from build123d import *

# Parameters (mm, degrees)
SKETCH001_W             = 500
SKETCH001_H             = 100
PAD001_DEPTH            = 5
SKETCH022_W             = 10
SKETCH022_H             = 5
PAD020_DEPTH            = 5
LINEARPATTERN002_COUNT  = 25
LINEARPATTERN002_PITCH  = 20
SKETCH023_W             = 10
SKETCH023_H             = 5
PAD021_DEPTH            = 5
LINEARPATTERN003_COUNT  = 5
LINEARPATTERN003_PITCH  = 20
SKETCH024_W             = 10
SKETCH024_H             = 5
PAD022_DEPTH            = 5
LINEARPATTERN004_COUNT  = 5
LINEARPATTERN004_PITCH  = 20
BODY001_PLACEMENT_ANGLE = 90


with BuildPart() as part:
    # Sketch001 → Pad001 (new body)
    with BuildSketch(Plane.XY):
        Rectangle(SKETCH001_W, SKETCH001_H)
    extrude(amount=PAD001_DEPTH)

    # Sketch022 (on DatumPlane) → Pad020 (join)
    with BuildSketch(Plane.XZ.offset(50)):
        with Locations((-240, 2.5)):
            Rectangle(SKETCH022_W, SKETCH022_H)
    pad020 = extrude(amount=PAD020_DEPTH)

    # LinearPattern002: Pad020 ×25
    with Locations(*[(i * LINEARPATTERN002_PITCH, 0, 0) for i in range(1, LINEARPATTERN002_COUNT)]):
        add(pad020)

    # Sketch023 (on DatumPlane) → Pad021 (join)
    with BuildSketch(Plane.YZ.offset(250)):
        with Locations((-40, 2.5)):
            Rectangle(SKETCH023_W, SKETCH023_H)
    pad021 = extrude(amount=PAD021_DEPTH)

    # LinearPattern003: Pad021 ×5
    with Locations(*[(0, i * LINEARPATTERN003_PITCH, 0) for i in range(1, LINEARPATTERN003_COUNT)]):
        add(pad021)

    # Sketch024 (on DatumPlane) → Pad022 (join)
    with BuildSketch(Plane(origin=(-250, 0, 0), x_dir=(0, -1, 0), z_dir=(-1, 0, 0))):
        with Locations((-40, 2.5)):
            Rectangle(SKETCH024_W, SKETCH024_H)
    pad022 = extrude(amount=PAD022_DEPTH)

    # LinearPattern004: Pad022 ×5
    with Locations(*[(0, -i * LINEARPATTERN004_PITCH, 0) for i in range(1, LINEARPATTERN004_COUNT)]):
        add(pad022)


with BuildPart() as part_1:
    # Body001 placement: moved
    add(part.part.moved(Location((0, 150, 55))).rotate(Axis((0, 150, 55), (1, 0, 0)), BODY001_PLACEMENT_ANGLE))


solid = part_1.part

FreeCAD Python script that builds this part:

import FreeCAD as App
import Part
import Sketcher
from FreeCAD import Vector
Q = App.Units.Quantity


def add_polygon(sketch, points):
    """Adds a closed chain of lines whose ends are joined by coincident constraints."""
    first, n = sketch.GeometryCount, len(points)
    for a, b in zip(points, points[1:] + points[:1]):
        sketch.addGeometry(Part.LineSegment(App.Vector(*a, 0), App.Vector(*b, 0)), False)
    for i in range(n):
        sketch.addConstraint(Sketcher.Constraint("Coincident", first + i, 2, first + (i + 1) % n, 1))

doc = App.newDocument("Part")
body = doc.addObject("PartDesign::Body", "Body")

# Sketch on XY plane
sketch1 = body.newObject("Sketcher::SketchObject", "Sketch")
sketch1.AttachmentSupport = (doc.getObject("XY_Plane"), [""])
sketch1.MapMode = "FlatFace"
add_polygon(sketch1, [(-250, 50), (-250, -50), (250, -50), (250, 50)])  # lines 0-3
sketch1.addConstraint([
    Sketcher.Constraint("Vertical", 0),
    Sketcher.Constraint("Horizontal", 1),
    Sketcher.Constraint("Vertical", 2),
    Sketcher.Constraint("Horizontal", 3),
    Sketcher.Constraint("Symmetric", 0, 2, 2, 2, -1, 1),
    Sketcher.Constraint("DistanceX", 1, 1, 1, 2, Q("500 mm")),
    Sketcher.Constraint("DistanceY", 0, 2, 0, 1, Q("100 mm")),
])
pad1 = body.newObject("PartDesign::Pad", "Pad")
pad1.Profile = sketch1
pad1.Length = 5

# Sketch on XZ plane
sketch2 = body.newObject("Sketcher::SketchObject", "Sketch001")
sketch2.AttachmentSupport = (doc.getObject("XZ_Plane"), [""])
sketch2.MapMode = "FlatFace"
sketch2.AttachmentOffset = App.Placement(Vector(0, 0, 50), App.Rotation())
add_polygon(sketch2, [(-245, 5), (-245, 0), (-235, 0), (-235, 5)])  # lines 0-3
sketch2.addConstraint([
    Sketcher.Constraint("Vertical", 0),
    Sketcher.Constraint("Horizontal", 1),
    Sketcher.Constraint("Vertical", 2),
    Sketcher.Constraint("Horizontal", 3),
    Sketcher.Constraint("PointOnObject", 0, 2, -1),
    Sketcher.Constraint("DistanceX", 1, 1, 1, 2, Q("10 mm")),
    Sketcher.Constraint("DistanceY", 0, 2, 0, 1, Q("5 mm")),
    Sketcher.Constraint("DistanceX", 0, 2, -1, 1, Q("245 mm")),
])
pad2 = body.newObject("PartDesign::Pad", "Pad001")
pad2.Profile = sketch2
pad2.Length = 5
doc.recompute()

linearpattern = body.newObject("PartDesign::LinearPattern", "LinearPattern")
linearpattern.Originals = [pad2]
linearpattern.Direction = (doc.getObject("X_Axis"), [""])
linearpattern.Mode = "offset"
linearpattern.Offset = 20
linearpattern.Occurrences = 25
body.Tip = linearpattern

# Sketch on YZ plane
sketch3 = body.newObject("Sketcher::SketchObject", "Sketch002")
sketch3.AttachmentSupport = (doc.getObject("YZ_Plane"), [""])
sketch3.MapMode = "FlatFace"
sketch3.AttachmentOffset = App.Placement(Vector(0, 0, 250), App.Rotation())
add_polygon(sketch3, [(-45, 5), (-45, 0), (-35, 0), (-35, 5)])  # lines 0-3
sketch3.addConstraint([
    Sketcher.Constraint("Vertical", 0),
    Sketcher.Constraint("Horizontal", 1),
    Sketcher.Constraint("Vertical", 2),
    Sketcher.Constraint("Horizontal", 3),
    Sketcher.Constraint("PointOnObject", 0, 2, -1),
    Sketcher.Constraint("DistanceX", 1, 1, 1, 2, Q("10 mm")),
    Sketcher.Constraint("DistanceY", 0, 2, 0, 1, Q("5 mm")),
    Sketcher.Constraint("DistanceX", 0, 2, -1, 1, Q("45 mm")),
])
pad3 = body.newObject("PartDesign::Pad", "Pad002")
pad3.Profile = sketch3
pad3.Length = 5
doc.recompute()

linearpattern2 = body.newObject("PartDesign::LinearPattern", "LinearPattern001")
linearpattern2.Originals = [pad3]
linearpattern2.Direction = (doc.getObject("Y_Axis"), [""])
linearpattern2.Mode = "offset"
linearpattern2.Offset = 20
linearpattern2.Occurrences = 5
body.Tip = linearpattern2

# Sketch on YZ plane
sketch4 = body.newObject("Sketcher::SketchObject", "Sketch003")
sketch4.AttachmentSupport = (doc.getObject("YZ_Plane"), [""])
sketch4.MapMode = "FlatFace"
sketch4.AttachmentOffset = App.Placement(Vector(0, 0, -250), App.Rotation())
add_polygon(sketch4, [(45, 5), (45, 0), (35, 0), (35, 5)])  # lines 0-3
sketch4.addConstraint([
    Sketcher.Constraint("Vertical", 0),
    Sketcher.Constraint("Horizontal", 1),
    Sketcher.Constraint("Vertical", 2),
    Sketcher.Constraint("Horizontal", 3),
    Sketcher.Constraint("PointOnObject", 0, 2, -1),
    Sketcher.Constraint("DistanceX", 1, 2, 1, 1, Q("10 mm")),
    Sketcher.Constraint("DistanceY", 0, 2, 0, 1, Q("5 mm")),
    Sketcher.Constraint("DistanceX", -1, 1, 0, 2, Q("45 mm")),
])
pad4 = body.newObject("PartDesign::Pad", "Pad003")
pad4.Profile = sketch4
pad4.Length = 5
pad4.Reversed = True
doc.recompute()

linearpattern3 = body.newObject("PartDesign::LinearPattern", "LinearPattern002")
linearpattern3.Originals = [pad4]
linearpattern3.Direction = (doc.getObject("Y_Axis"), [""])
linearpattern3.Mode = "offset"
linearpattern3.Offset = 20
linearpattern3.Occurrences = 5
linearpattern3.Reversed = True
body.Tip = linearpattern3
body2 = doc.addObject("PartDesign::Body", "Body001")
doc.recompute()

body.Placement = App.Placement(Vector(0, 150, 55), App.Rotation(Vector(1, 0, 0), 90))
boolean = body2.newObject("PartDesign::Boolean", "Boolean")
boolean.Type = "Fuse"
boolean.addObjects([body])

doc.recompute()
